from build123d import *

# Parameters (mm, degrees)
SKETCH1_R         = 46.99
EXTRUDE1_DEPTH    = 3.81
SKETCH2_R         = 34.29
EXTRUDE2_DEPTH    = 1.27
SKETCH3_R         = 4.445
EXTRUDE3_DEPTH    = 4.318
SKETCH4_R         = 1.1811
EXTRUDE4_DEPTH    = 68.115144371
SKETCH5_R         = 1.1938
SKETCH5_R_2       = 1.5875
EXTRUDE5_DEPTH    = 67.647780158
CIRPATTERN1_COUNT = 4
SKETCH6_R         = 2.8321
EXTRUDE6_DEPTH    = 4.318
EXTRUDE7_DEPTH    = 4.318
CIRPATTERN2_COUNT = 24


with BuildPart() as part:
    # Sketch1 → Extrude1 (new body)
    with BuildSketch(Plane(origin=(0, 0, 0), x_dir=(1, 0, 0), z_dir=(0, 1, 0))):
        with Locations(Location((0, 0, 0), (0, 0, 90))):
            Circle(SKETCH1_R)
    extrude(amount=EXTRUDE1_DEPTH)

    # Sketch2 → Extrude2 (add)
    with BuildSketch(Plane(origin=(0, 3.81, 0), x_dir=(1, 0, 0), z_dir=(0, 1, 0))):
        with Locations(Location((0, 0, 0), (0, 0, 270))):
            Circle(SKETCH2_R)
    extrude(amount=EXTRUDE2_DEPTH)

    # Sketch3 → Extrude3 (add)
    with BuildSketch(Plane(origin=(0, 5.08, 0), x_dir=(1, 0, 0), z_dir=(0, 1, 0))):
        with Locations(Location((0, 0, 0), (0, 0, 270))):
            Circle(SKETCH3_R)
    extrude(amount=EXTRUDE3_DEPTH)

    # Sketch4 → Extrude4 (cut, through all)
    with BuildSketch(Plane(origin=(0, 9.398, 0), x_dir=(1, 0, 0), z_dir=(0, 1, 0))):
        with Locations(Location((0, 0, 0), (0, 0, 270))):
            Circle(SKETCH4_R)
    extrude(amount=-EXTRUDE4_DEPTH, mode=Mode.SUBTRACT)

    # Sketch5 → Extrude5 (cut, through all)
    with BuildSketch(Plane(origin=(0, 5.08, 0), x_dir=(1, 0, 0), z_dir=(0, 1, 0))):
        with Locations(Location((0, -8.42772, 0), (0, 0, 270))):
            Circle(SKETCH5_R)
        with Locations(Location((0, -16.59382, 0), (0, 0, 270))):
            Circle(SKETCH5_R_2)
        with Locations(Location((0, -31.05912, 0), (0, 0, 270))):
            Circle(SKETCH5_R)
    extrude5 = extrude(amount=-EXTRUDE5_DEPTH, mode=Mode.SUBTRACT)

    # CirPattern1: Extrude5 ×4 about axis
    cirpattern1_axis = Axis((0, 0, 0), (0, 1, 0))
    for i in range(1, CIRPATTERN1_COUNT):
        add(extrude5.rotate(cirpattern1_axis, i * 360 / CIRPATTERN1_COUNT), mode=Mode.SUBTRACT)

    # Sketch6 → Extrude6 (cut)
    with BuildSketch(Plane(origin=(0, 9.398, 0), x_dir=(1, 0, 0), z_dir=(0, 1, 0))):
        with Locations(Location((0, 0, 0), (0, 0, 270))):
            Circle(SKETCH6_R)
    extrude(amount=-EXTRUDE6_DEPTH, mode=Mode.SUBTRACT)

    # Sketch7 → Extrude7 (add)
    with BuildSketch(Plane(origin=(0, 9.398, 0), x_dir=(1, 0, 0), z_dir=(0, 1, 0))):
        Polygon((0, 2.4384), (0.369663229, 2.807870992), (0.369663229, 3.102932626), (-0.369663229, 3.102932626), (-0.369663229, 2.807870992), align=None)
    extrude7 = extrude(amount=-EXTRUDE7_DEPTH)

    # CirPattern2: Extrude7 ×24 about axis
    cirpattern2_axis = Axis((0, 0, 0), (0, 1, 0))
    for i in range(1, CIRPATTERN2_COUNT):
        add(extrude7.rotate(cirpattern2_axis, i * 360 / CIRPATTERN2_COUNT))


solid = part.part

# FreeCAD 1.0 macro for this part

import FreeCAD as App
import Part
import Sketcher
Q = App.Units.Quantity

doc = App.newDocument("Part")
params = doc.addObject("Spreadsheet::Sheet", "Params")
for row, (alias, value) in enumerate([
    ("sketch1_diameter", "3.7 in"),
    ("pad1_length", "0.15 in"),
    ("sketch2_diameter", "2.7 in"),
    ("pad2_length", "0.05 in"),
    ("sketch3_diameter", "0.35 in"),
    ("pad3_length", "0.17 in"),
    ("sketch4_diameter", "0.093 in"),
    ("sketch5_diameter", "0.094 in"),
    ("sketch5_diameter2", "0.125 in"),
    ("sketch6_diameter", "0.223 in"),
    ("pocket3_length", "0.17 in"),
    ("pad4_length", "0.17 in"),
], start=1):
    params.set(f"A{row}", alias)
    params.set(f"B{row}", "=" + value)
    params.setAlias(f"B{row}", alias)

body = doc.addObject("PartDesign::Body", "Body")

sketch1 = body.newObject("Sketcher::SketchObject", "Sketch")
sketch1.AttachmentSupport = (doc.getObject("XZ_Plane"), [""])
sketch1.MapMode = "FlatFace"
sketch1.addGeometry(Part.Circle(App.Vector(0, 0, 0), App.Vector(0, 0, 1), 47), False)
sketch1.addConstraint(Sketcher.Constraint("Coincident", 0, 3, -1, 1))
sketch1.addConstraint(Sketcher.Constraint("Diameter", 0, Q("3.7 in")))
sketch1.setExpression("Constraints[1]", "Params.sketch1_diameter")
pad1 = body.newObject("PartDesign::Pad", "Pad")
pad1.Profile = sketch1
pad1.setExpression("Length", "Params.pad1_length")
pad1.Reversed = True

sketch2 = body.newObject("Sketcher::SketchObject", "Sketch001")
sketch2.AttachmentSupport = (doc.getObject("XZ_Plane"), [""])
sketch2.MapMode = "FlatFace"
sketch2.AttachmentOffset = App.Placement(App.Vector(0, 0, -0.15 * 25.4), App.Rotation())
sketch2.addGeometry(Part.Circle(App.Vector(0, 0, 0), App.Vector(0, 0, 1), 34), False)
sketch2.addConstraint(Sketcher.Constraint("Coincident", 0, 3, -1, 1))
sketch2.addConstraint(Sketcher.Constraint("Diameter", 0, Q("2.7 in")))
sketch2.setExpression("Constraints[1]", "Params.sketch2_diameter")
pad2 = body.newObject("PartDesign::Pad", "Pad001")
pad2.Profile = sketch2
pad2.setExpression("Length", "Params.pad2_length")
pad2.Reversed = True

sketch3 = body.newObject("Sketcher::SketchObject", "Sketch002")
sketch3.AttachmentSupport = (doc.getObject("XZ_Plane"), [""])
sketch3.MapMode = "FlatFace"
sketch3.AttachmentOffset = App.Placement(App.Vector(0, 0, -0.2 * 25.4), App.Rotation())
sketch3.addGeometry(Part.Circle(App.Vector(0, 0, 0), App.Vector(0, 0, 1), 4.4), False)
sketch3.addConstraint(Sketcher.Constraint("Coincident", 0, 3, -1, 1))
sketch3.addConstraint(Sketcher.Constraint("Diameter", 0, Q("0.35 in")))
sketch3.setExpression("Constraints[1]", "Params.sketch3_diameter")
pad3 = body.newObject("PartDesign::Pad", "Pad002")
pad3.Profile = sketch3
pad3.setExpression("Length", "Params.pad3_length")
pad3.Reversed = True

sketch4 = body.newObject("Sketcher::SketchObject", "Sketch003")
sketch4.AttachmentSupport = (doc.getObject("XZ_Plane"), [""])
sketch4.MapMode = "FlatFace"
sketch4.AttachmentOffset = App.Placement(App.Vector(0, 0, -0.37 * 25.4), App.Rotation())
sketch4.addGeometry(Part.Circle(App.Vector(0, 0, 0), App.Vector(0, 0, 1), 1.2), False)
sketch4.addConstraint(Sketcher.Constraint("Coincident", 0, 3, -1, 1))
sketch4.addConstraint(Sketcher.Constraint("Diameter", 0, Q("0.093 in")))
sketch4.setExpression("Constraints[1]", "Params.sketch4_diameter")
pocket1 = body.newObject("PartDesign::Pocket", "Pocket")
pocket1.Profile = sketch4
pocket1.Type = "ThroughAll"
pocket1.Reversed = True

sketch5 = body.newObject("Sketcher::SketchObject", "Sketch004")
sketch5.AttachmentSupport = (doc.getObject("XZ_Plane"), [""])
sketch5.MapMode = "FlatFace"
sketch5.AttachmentOffset = App.Placement(App.Vector(0, 0, -0.2 * 25.4), App.Rotation())
sketch5.addGeometry(Part.Circle(App.Vector(0, 8.4, 0), App.Vector(0, 0, 1), 1.2), False)
sketch5.addGeometry(Part.Circle(App.Vector(0, 16.6, 0), App.Vector(0, 0, 1), 1.6), False)
sketch5.addGeometry(Part.Circle(App.Vector(0, 31.1, 0), App.Vector(0, 0, 1), 1.2), False)
sketch5.addConstraint(Sketcher.Constraint("Equal", 0, 2))
sketch5.addConstraint(Sketcher.Constraint("PointOnObject", 0, 3, -2))
sketch5.addConstraint(Sketcher.Constraint("PointOnObject", 1, 3, -2))
sketch5.addConstraint(Sketcher.Constraint("PointOnObject", 2, 3, -2))
sketch5.addConstraint(Sketcher.Constraint("Diameter", 0, Q("0.094 in")))
sketch5.addConstraint(Sketcher.Constraint("Diameter", 1, Q("0.125 in")))
sketch5.addConstraint(Sketcher.Constraint("DistanceY", 0, 3, 2, 3, Q("0.891 in")))
sketch5.addConstraint(Sketcher.Constraint("DistanceY", -1, 1, 0, 3, Q("0.3318 in")))
sketch5.addConstraint(Sketcher.Constraint("DistanceY", -1, 1, 1, 3, Q("0.6533 in")))
sketch5.setExpression("Constraints[4]", "Params.sketch5_diameter")
sketch5.setExpression("Constraints[5]", "Params.sketch5_diameter2")
pocket2 = body.newObject("PartDesign::Pocket", "Pocket001")
pocket2.Profile = sketch5
pocket2.Type = "ThroughAll"
pocket2.Reversed = True
doc.recompute()

polarpattern = body.newObject("PartDesign::PolarPattern", "PolarPattern")
polarpattern.Originals = [pocket2]
polarpattern.Axis = (doc.getObject("Y_Axis"), [""])
polarpattern.Angle = 360
polarpattern.Occurrences = 4
body.Tip = polarpattern

sketch6 = body.newObject("Sketcher::SketchObject", "Sketch005")
sketch6.AttachmentSupport = (doc.getObject("XZ_Plane"), [""])
sketch6.MapMode = "FlatFace"
sketch6.AttachmentOffset = App.Placement(App.Vector(0, 0, -0.37 * 25.4), App.Rotation())
sketch6.addGeometry(Part.Circle(App.Vector(0, 0, 0), App.Vector(0, 0, 1), 2.8), False)
sketch6.addConstraint(Sketcher.Constraint("Coincident", 0, 3, -1, 1))
sketch6.addConstraint(Sketcher.Constraint("Diameter", 0, Q("0.223 in")))
sketch6.setExpression("Constraints[1]", "Params.sketch6_diameter")
pocket3 = body.newObject("PartDesign::Pocket", "Pocket002")
pocket3.Profile = sketch6
pocket3.setExpression("Length", "Params.pocket3_length")
pocket3.Reversed = True

sketch7 = body.newObject("Sketcher::SketchObject", "Sketch006")
sketch7.AttachmentSupport = (doc.getObject("XZ_Plane"), [""])
sketch7.MapMode = "FlatFace"
sketch7.AttachmentOffset = App.Placement(App.Vector(0, 0, -0.37 * 25.4), App.Rotation())
sketch7.addGeometry(Part.LineSegment(App.Vector(0, -2.44, 0), App.Vector(0.37, -2.81, 0)), False)
sketch7.addGeometry(Part.LineSegment(App.Vector(0.37, -2.81, 0), App.Vector(0.37, -3.1, 0)), False)
sketch7.addGeometry(Part.LineSegment(App.Vector(0.37, -3.1, 0), App.Vector(-0.37, -3.1, 0)), False)
sketch7.addGeometry(Part.LineSegment(App.Vector(-0.37, -3.1, 0), App.Vector(-0.37, -2.81, 0)), False)
sketch7.addGeometry(Part.LineSegment(App.Vector(-0.37, -2.81, 0), App.Vector(0, -2.44, 0)), False)
sketch7.addConstraint(Sketcher.Constraint("Coincident", 0, 2, 1, 1))
sketch7.addConstraint(Sketcher.Constraint("Coincident", 1, 2, 2, 1))
sketch7.addConstraint(Sketcher.Constraint("Coincident", 2, 2, 3, 1))
sketch7.addConstraint(Sketcher.Constraint("Coincident", 3, 2, 4, 1))
sketch7.addConstraint(Sketcher.Constraint("Coincident", 4, 2, 0, 1))
sketch7.addConstraint(Sketcher.Constraint("Vertical", 1))
sketch7.addConstraint(Sketcher.Constraint("Horizontal", 2))
sketch7.addConstraint(Sketcher.Constraint("Vertical", 3))
sketch7.addConstraint(Sketcher.Constraint("Symmetric", 0, 2, 3, 2, -2))
sketch7.addConstraint(Sketcher.Constraint("PointOnObject", 4, 2, -2))
sketch7.addConstraint(Sketcher.Constraint("DistanceY", 4, 2, -1, 1, Q("0.096 in")))
sketch7.addConstraint(Sketcher.Constraint("DistanceY", 1, 2, 1, 1, Q("0.295062 mm")))
sketch7.addConstraint(Sketcher.Constraint("DistanceX", 2, 2, 2, 1, Q("0.739326 mm")))
sketch7.addConstraint(Sketcher.Constraint("DistanceY", 0, 2, -1, 1, Q("2.807871 mm")))
pad4 = body.newObject("PartDesign::Pad", "Pad003")
pad4.Profile = sketch7
pad4.setExpression("Length", "Params.pad4_length")
doc.recompute()

polarpattern2 = body.newObject("PartDesign::PolarPattern", "PolarPattern001")
polarpattern2.Originals = [pad4]
polarpattern2.Axis = (doc.getObject("Y_Axis"), [""])
polarpattern2.Angle = 360
polarpattern2.Occurrences = 24
body.Tip = polarpattern2

doc.recompute()
